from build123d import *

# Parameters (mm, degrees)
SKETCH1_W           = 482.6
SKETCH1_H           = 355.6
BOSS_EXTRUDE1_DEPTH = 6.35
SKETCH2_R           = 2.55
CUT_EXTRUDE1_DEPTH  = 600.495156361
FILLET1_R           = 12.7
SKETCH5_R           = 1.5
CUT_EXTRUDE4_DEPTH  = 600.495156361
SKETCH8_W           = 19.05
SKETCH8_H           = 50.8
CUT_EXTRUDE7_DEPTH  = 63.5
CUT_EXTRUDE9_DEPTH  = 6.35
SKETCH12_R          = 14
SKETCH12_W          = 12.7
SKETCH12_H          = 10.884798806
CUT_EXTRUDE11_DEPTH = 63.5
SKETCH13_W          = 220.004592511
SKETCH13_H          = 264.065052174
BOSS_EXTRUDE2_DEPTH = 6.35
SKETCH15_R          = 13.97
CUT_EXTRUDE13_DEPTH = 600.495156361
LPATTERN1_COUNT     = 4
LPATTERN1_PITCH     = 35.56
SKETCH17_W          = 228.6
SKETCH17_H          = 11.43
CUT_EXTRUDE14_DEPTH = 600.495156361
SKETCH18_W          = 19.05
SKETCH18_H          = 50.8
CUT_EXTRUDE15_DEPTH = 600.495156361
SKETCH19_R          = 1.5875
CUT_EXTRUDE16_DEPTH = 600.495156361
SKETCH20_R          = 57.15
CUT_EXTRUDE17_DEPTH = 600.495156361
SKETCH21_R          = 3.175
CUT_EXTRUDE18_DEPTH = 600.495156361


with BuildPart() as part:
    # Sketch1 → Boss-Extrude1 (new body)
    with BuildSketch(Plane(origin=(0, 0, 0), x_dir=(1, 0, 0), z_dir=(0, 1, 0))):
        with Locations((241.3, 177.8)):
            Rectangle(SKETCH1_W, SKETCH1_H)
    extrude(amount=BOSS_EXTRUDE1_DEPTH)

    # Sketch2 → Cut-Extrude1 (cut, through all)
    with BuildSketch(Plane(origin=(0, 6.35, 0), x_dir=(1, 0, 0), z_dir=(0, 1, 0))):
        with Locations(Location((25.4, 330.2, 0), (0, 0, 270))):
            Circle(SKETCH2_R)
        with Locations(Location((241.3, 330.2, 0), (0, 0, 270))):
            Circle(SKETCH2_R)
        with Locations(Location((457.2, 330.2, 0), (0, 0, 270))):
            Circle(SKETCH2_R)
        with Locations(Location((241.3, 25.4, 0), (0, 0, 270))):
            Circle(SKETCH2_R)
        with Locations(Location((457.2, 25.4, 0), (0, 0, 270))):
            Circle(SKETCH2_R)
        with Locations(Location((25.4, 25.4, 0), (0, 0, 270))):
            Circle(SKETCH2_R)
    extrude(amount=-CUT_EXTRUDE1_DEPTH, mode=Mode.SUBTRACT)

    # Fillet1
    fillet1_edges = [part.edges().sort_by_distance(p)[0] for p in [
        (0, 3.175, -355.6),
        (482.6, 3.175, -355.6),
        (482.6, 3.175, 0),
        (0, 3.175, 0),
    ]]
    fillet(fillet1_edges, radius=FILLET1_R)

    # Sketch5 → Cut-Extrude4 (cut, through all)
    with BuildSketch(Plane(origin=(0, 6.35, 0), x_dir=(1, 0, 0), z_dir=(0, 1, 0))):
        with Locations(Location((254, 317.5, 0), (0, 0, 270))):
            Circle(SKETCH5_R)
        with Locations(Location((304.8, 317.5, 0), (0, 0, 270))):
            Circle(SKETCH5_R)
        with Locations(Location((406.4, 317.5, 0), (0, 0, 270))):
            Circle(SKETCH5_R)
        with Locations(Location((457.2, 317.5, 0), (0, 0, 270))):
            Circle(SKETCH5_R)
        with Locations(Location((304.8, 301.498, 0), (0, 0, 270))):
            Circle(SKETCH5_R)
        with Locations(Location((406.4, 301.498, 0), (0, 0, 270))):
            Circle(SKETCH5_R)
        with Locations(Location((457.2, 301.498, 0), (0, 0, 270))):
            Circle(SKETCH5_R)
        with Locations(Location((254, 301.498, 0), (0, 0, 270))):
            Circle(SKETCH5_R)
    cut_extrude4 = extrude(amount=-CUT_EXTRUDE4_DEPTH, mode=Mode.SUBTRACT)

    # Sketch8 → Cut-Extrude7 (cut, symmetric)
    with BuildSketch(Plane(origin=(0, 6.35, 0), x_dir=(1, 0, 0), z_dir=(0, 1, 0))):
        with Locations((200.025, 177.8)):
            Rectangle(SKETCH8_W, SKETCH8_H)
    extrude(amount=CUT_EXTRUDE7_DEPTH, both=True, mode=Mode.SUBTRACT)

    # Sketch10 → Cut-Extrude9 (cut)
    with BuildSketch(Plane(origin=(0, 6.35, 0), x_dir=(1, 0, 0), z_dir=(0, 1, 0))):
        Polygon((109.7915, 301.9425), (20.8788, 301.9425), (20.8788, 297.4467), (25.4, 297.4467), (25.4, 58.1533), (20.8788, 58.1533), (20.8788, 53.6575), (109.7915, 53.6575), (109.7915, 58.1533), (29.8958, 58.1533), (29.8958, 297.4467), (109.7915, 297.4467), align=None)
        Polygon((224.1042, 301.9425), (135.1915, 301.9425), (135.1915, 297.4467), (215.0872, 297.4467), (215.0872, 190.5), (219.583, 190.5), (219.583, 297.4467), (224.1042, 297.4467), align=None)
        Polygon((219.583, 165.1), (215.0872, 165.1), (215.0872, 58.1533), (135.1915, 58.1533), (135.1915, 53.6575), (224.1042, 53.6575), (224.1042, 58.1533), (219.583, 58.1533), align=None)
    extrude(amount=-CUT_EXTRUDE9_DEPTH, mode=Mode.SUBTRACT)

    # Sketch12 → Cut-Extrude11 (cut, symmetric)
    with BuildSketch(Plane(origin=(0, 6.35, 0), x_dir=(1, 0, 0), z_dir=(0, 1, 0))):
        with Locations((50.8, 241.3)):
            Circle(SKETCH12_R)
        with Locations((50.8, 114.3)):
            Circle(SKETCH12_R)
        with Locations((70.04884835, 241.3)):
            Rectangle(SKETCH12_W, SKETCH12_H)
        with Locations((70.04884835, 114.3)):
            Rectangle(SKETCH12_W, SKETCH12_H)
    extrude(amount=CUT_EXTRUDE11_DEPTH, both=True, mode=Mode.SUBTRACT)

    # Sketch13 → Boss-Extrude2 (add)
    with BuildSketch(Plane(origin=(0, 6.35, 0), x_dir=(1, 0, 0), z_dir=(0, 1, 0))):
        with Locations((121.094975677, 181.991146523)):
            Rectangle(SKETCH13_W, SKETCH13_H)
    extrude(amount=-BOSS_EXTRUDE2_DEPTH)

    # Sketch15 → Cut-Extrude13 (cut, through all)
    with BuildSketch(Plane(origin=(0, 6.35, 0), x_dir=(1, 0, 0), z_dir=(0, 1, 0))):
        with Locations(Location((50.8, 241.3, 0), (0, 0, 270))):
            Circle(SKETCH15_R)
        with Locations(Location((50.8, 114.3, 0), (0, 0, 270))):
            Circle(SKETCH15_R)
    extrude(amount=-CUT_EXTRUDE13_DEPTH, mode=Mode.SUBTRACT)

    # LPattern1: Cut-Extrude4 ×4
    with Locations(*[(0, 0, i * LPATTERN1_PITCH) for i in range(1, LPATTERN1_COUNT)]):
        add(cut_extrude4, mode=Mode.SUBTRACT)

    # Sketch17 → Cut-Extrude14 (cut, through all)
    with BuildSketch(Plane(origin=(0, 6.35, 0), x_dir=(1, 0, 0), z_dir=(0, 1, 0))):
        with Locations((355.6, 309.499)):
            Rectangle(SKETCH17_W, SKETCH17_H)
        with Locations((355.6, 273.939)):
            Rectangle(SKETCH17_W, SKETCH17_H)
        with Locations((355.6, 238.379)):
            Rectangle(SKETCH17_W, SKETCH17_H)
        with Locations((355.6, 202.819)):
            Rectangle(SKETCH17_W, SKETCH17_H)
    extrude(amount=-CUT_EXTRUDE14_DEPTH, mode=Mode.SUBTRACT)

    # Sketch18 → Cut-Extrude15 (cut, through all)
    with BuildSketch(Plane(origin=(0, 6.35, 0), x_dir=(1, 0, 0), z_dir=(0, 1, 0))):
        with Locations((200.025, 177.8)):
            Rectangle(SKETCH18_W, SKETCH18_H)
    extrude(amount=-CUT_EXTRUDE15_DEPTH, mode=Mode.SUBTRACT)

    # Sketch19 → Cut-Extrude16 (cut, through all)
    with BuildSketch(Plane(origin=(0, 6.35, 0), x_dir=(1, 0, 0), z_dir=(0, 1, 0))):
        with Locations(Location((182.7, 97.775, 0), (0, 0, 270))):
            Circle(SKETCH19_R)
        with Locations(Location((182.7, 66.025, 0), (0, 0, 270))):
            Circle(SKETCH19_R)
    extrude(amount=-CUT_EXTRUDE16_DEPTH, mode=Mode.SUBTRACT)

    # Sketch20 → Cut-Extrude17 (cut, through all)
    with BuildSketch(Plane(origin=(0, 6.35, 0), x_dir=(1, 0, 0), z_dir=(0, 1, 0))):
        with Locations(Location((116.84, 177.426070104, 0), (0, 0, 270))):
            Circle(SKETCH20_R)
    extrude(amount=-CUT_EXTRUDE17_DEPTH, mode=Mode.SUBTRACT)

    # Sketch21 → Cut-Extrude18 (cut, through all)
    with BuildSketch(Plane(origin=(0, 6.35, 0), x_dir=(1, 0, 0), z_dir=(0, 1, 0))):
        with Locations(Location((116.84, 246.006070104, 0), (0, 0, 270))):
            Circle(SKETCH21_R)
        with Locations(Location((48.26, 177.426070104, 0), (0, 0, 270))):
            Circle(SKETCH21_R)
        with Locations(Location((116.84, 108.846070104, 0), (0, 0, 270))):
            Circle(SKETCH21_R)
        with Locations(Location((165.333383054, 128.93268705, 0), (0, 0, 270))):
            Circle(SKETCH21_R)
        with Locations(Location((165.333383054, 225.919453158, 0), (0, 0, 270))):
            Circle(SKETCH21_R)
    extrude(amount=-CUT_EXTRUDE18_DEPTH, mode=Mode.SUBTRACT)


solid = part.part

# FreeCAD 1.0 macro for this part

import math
import FreeCAD as App
import Part
import Sketcher
Q = App.Units.Quantity


def edges_at(feature, points):
    """Names of the edges that pass closest to the given points."""
    edges = feature.Shape.Edges
    near = lambda p: min(range(len(edges)), key=lambda i: edges[i].distToShape(Part.Vertex(*p))[0])
    return sorted({f"Edge{near(p) + 1}" for p in points})

doc = App.newDocument("Part")
params = doc.addObject("Spreadsheet::Sheet", "Params")
for row, (alias, value) in enumerate([
    ("sketch1_width", "19 in"),
    ("sketch1_height", "14 in"),
    ("pad1_length", "0.25 in"),
    ("fillet_radius", "0.5 in"),
    ("sketch4_height", "2 in"),
    ("sketch4_width", "0.75 in"),
    ("pocket3_length", "5 in"),
    ("sketch5_width", "0.178 in"),
    ("sketch5_width2", "0.177 in"),
    ("sketch5_height", "9.421 in"),
    ("pocket4_length", "0.25 in"),
    ("sketch6_width", "0.5 in"),
    ("pocket5_length", "5 in"),
    ("pad2_length", "0.25 in"),
    ("sketch8_diameter", "1.1 in"),
    ("linearpattern_pitch", "1.4 in"),
    ("sketch9_width", "9 in"),
    ("sketch9_height", "0.45 in"),
    ("sketch10_height", "2 in"),
    ("sketch10_width", "0.75 in"),
    ("sketch11_diameter", "0.125 in"),
    ("sketch12_diameter", "4.5 in"),
    ("sketch13_diameter", "0.25 in"),
], start=1):
    params.set(f"A{row}", alias)
    params.set(f"B{row}", "=" + value)
    params.setAlias(f"B{row}", alias)

body = doc.addObject("PartDesign::Body", "Body")

sketch1 = body.newObject("Sketcher::SketchObject", "Sketch")
sketch1.AttachmentSupport = (doc.getObject("XZ_Plane"), [""])
sketch1.MapMode = "FlatFace"
sketch1.addGeometry(Part.LineSegment(App.Vector(0, -356, 0), App.Vector(0, 0, 0)), False)
sketch1.addGeometry(Part.LineSegment(App.Vector(0, 0, 0), App.Vector(483, 0, 0)), False)
sketch1.addGeometry(Part.LineSegment(App.Vector(483, 0, 0), App.Vector(483, -356, 0)), False)
sketch1.addGeometry(Part.LineSegment(App.Vector(483, -356, 0), App.Vector(0, -356, 0)), False)
sketch1.addConstraint(Sketcher.Constraint("Coincident", 0, 2, 1, 1))
sketch1.addConstraint(Sketcher.Constraint("Coincident", 1, 2, 2, 1))
sketch1.addConstraint(Sketcher.Constraint("Coincident", 2, 2, 3, 1))
sketch1.addConstraint(Sketcher.Constraint("Coincident", 3, 2, 0, 1))
sketch1.addConstraint(Sketcher.Constraint("Vertical", 0))
sketch1.addConstraint(Sketcher.Constraint("Horizontal", 1))
sketch1.addConstraint(Sketcher.Constraint("Vertical", 2))
sketch1.addConstraint(Sketcher.Constraint("Horizontal", 3))
sketch1.addConstraint(Sketcher.Constraint("Coincident", 0, 2, -1, 1))
sketch1.addConstraint(Sketcher.Constraint("DistanceX", 1, 1, 1, 2, Q("19 in")))
sketch1.addConstraint(Sketcher.Constraint("DistanceY", 0, 1, 0, 2, Q("14 in")))
sketch1.setExpression("Constraints[9]", "Params.sketch1_width")
sketch1.setExpression("Constraints[10]", "Params.sketch1_height")
pad1 = body.newObject("PartDesign::Pad", "Pad")
pad1.Profile = sketch1
pad1.setExpression("Length", "Params.pad1_length")
pad1.Reversed = True

sketch2 = body.newObject("Sketcher::SketchObject", "Sketch001")
sketch2.AttachmentSupport = (doc.getObject("XZ_Plane"), [""])
sketch2.MapMode = "FlatFace"
sketch2.AttachmentOffset = App.Placement(App.Vector(0, 0, -0.25 * 25.4), App.Rotation())
sketch2.addGeometry(Part.Circle(App.Vector(25.4, -330.2, 0), App.Vector(0, 0, 1), 2.5), False)
sketch2.addGeometry(Part.Circle(App.Vector(241.3, -330.2, 0), App.Vector(0, 0, 1), 2.5), False)
sketch2.addGeometry(Part.Circle(App.Vector(457.2, -330.2, 0), App.Vector(0, 0, 1), 2.5), False)
sketch2.addGeometry(Part.Circle(App.Vector(241.3, -25.4, 0), App.Vector(0, 0, 1), 2.5), False)
sketch2.addGeometry(Part.Circle(App.Vector(457.2, -25.4, 0), App.Vector(0, 0, 1), 2.5), False)
sketch2.addGeometry(Part.Circle(App.Vector(25.4, -25.4, 0), App.Vector(0, 0, 1), 2.5), False)
sketch2.addConstraint(Sketcher.Constraint("Equal", 0, 1))
sketch2.addConstraint(Sketcher.Constraint("Equal", 1, 2))
sketch2.addConstraint(Sketcher.Constraint("Equal", 2, 3))
sketch2.addConstraint(Sketcher.Constraint("Equal", 3, 4))
sketch2.addConstraint(Sketcher.Constraint("Equal", 4, 5))
sketch2.addConstraint(Sketcher.Constraint("Horizontal", 0, 3, 1, 3))
sketch2.addConstraint(Sketcher.Constraint("Horizontal", 1, 3, 2, 3))
sketch2.addConstraint(Sketcher.Constraint("Horizontal", 3, 3, 4, 3))
sketch2.addConstraint(Sketcher.Constraint("Horizontal", 4, 3, 5, 3))
sketch2.addConstraint(Sketcher.Constraint("Vertical", 1, 3, 3, 3))
sketch2.addConstraint(Sketcher.Constraint("Vertical", 2, 3, 4, 3))
sketch2.addConstraint(Sketcher.Constraint("Vertical", 0, 3, 5, 3))
sketch2.addConstraint(Sketcher.Constraint("DistanceX", -1, 1, 0, 3, Q("1 in")))
sketch2.addConstraint(Sketcher.Constraint("DistanceY", 0, 3, -1, 1, Q("13 in")))
sketch2.addConstraint(Sketcher.Constraint("DistanceX", -1, 1, 2, 3, Q("18 in")))
sketch2.addConstraint(Sketcher.Constraint("DistanceY", 3, 3, -1, 1, Q("1 in")))
sketch2.addConstraint(Sketcher.Constraint("DistanceX", -1, 1, 1, 3, Q("9.5 in")))
sketch2.addConstraint(Sketcher.Constraint("Diameter", 0, Q("5.1 mm")))
pocket1 = body.newObject("PartDesign::Pocket", "Pocket")
pocket1.Profile = sketch2
pocket1.Type = "ThroughAll"
pocket1.Reversed = True
doc.recompute()

fillet = body.newObject("PartDesign::Fillet", "Fillet")
fillet.Base = (pocket1, edges_at(pocket1, [
    (0, 3.175, -355.6),
    (482.6, 3.175, -355.6),
    (482.6, 3.175, 0),
    (0, 3.175, 0),
]))
fillet.setExpression("Radius", "Params.fillet_radius")

sketch3 = body.newObject("Sketcher::SketchObject", "Sketch002")
sketch3.AttachmentSupport = (doc.getObject("XZ_Plane"), [""])
sketch3.MapMode = "FlatFace"
sketch3.AttachmentOffset = App.Placement(App.Vector(0, 0, -0.25 * 25.4), App.Rotation())
sketch3.addGeometry(Part.Circle(App.Vector(254, -317.5, 0), App.Vector(0, 0, 1), 1.5), False)
sketch3.addGeometry(Part.Circle(App.Vector(304.8, -317.5, 0), App.Vector(0, 0, 1), 1.5), False)
sketch3.addGeometry(Part.Circle(App.Vector(406.4, -317.5, 0), App.Vector(0, 0, 1), 1.5), False)
sketch3.addGeometry(Part.Circle(App.Vector(457.2, -317.5, 0), App.Vector(0, 0, 1), 1.5), False)
sketch3.addGeometry(Part.Circle(App.Vector(304.8, -301.5, 0), App.Vector(0, 0, 1), 1.5), False)
sketch3.addGeometry(Part.Circle(App.Vector(406.4, -301.5, 0), App.Vector(0, 0, 1), 1.5), False)
sketch3.addGeometry(Part.Circle(App.Vector(457.2, -301.5, 0), App.Vector(0, 0, 1), 1.5), False)
sketch3.addGeometry(Part.Circle(App.Vector(254, -301.5, 0), App.Vector(0, 0, 1), 1.5), False)
sketch3.addConstraint(Sketcher.Constraint("Equal", 0, 1))
sketch3.addConstraint(Sketcher.Constraint("Equal", 1, 2))
sketch3.addConstraint(Sketcher.Constraint("Equal", 2, 3))
sketch3.addConstraint(Sketcher.Constraint("Equal", 3, 4))
sketch3.addConstraint(Sketcher.Constraint("Equal", 4, 5))
sketch3.addConstraint(Sketcher.Constraint("Equal", 5, 6))
sketch3.addConstraint(Sketcher.Constraint("Equal", 6, 7))
sketch3.addConstraint(Sketcher.Constraint("Horizontal", 0, 3, 1, 3))
sketch3.addConstraint(Sketcher.Constraint("Horizontal", 1, 3, 2, 3))
sketch3.addConstraint(Sketcher.Constraint("Horizontal", 2, 3, 3, 3))
sketch3.addConstraint(Sketcher.Constraint("Horizontal", 4, 3, 5, 3))
sketch3.addConstraint(Sketcher.Constraint("Horizontal", 5, 3, 6, 3))
sketch3.addConstraint(Sketcher.Constraint("Horizontal", 6, 3, 7, 3))
sketch3.addConstraint(Sketcher.Constraint("Vertical", 1, 3, 4, 3))
sketch3.addConstraint(Sketcher.Constraint("Vertical", 2, 3, 5, 3))
sketch3.addConstraint(Sketcher.Constraint("Vertical", 3, 3, 6, 3))
sketch3.addConstraint(Sketcher.Constraint("Vertical", 0, 3, 7, 3))
sketch3.addConstraint(Sketcher.Constraint("DistanceX", -1, 1, 0, 3, Q("10 in")))
sketch3.addConstraint(Sketcher.Constraint("DistanceX", -1, 1, 1, 3, Q("12 in")))
sketch3.addConstraint(Sketcher.Constraint("DistanceX", -1, 1, 2, 3, Q("16 in")))
sketch3.addConstraint(Sketcher.Constraint("DistanceX", -1, 1, 3, 3, Q("18 in")))
sketch3.addConstraint(Sketcher.Constraint("DistanceY", 0, 3, -1, 1, Q("12.5 in")))
sketch3.addConstraint(Sketcher.Constraint("Diameter", 0, Q("3 mm")))
sketch3.addConstraint(Sketcher.Constraint("DistanceY", 4, 3, -1, 1, Q("11.87 in")))
pocket2 = body.newObject("PartDesign::Pocket", "Pocket001")
pocket2.Profile = sketch3
pocket2.Type = "ThroughAll"
pocket2.Reversed = True

sketch4 = body.newObject("Sketcher::SketchObject", "Sketch003")
sketch4.AttachmentSupport = (doc.getObject("XZ_Plane"), [""])
sketch4.MapMode = "FlatFace"
sketch4.AttachmentOffset = App.Placement(App.Vector(0, 0, -0.25 * 25.4), App.Rotation())
sketch4.addGeometry(Part.LineSegment(App.Vector(190, -203, 0), App.Vector(190, -152, 0)), False)
sketch4.addGeometry(Part.LineSegment(App.Vector(190, -152, 0), App.Vector(210, -152, 0)), False)
sketch4.addGeometry(Part.LineSegment(App.Vector(210, -152, 0), App.Vector(210, -203, 0)), False)
sketch4.addGeometry(Part.LineSegment(App.Vector(210, -203, 0), App.Vector(190, -203, 0)), False)
sketch4.addConstraint(Sketcher.Constraint("Coincident", 0, 2, 1, 1))
sketch4.addConstraint(Sketcher.Constraint("Coincident", 1, 2, 2, 1))
sketch4.addConstraint(Sketcher.Constraint("Coincident", 2, 2, 3, 1))
sketch4.addConstraint(Sketcher.Constraint("Coincident", 3, 2, 0, 1))
sketch4.addConstraint(Sketcher.Constraint("Vertical", 0))
sketch4.addConstraint(Sketcher.Constraint("Horizontal", 1))
sketch4.addConstraint(Sketcher.Constraint("Vertical", 2))
sketch4.addConstraint(Sketcher.Constraint("Horizontal", 3))
sketch4.addConstraint(Sketcher.Constraint("DistanceY", 0, 1, 0, 2, Q("2 in")))
sketch4.addConstraint(Sketcher.Constraint("DistanceY", 0, 2, -1, 1, Q("6 in")))
sketch4.addConstraint(Sketcher.Constraint("DistanceX", 1, 1, 1, 2, Q("0.75 in")))
sketch4.addConstraint(Sketcher.Constraint("DistanceX", -1, 1, 0, 2, Q("7.5 in")))
sketch4.setExpression("Constraints[8]", "Params.sketch4_height")
sketch4.setExpression("Constraints[10]", "Params.sketch4_width")
pocket3 = body.newObject("PartDesign::Pocket", "Pocket002")
pocket3.Profile = sketch4
pocket3.setExpression("Length", "Params.pocket3_length")
pocket3.Midplane = True

sketch5 = body.newObject("Sketcher::SketchObject", "Sketch004")
sketch5.AttachmentSupport = (doc.getObject("XZ_Plane"), [""])
sketch5.MapMode = "FlatFace"
sketch5.AttachmentOffset = App.Placement(App.Vector(0, 0, -0.25 * 25.4), App.Rotation())
sketch5.addGeometry(Part.LineSegment(App.Vector(109.8, -301.9, 0), App.Vector(20.9, -301.9, 0)), False)
sketch5.addGeometry(Part.LineSegment(App.Vector(20.9, -301.9, 0), App.Vector(20.9, -297.4, 0)), False)
sketch5.addGeometry(Part.LineSegment(App.Vector(20.9, -297.4, 0), App.Vector(25.4, -297.4, 0)), False)
sketch5.addGeometry(Part.LineSegment(App.Vector(25.4, -297.4, 0), App.Vector(25.4, -58.2, 0)), False)
sketch5.addGeometry(Part.LineSegment(App.Vector(25.4, -58.2, 0), App.Vector(20.9, -58.2, 0)), False)
sketch5.addGeometry(Part.LineSegment(App.Vector(20.9, -58.2, 0), App.Vector(20.9, -53.7, 0)), False)
sketch5.addGeometry(Part.LineSegment(App.Vector(20.9, -53.7, 0), App.Vector(109.8, -53.7, 0)), False)
sketch5.addGeometry(Part.LineSegment(App.Vector(109.8, -53.7, 0), App.Vector(109.8, -58.2, 0)), False)
sketch5.addGeometry(Part.LineSegment(App.Vector(109.8, -58.2, 0), App.Vector(29.9, -58.2, 0)), False)
sketch5.addGeometry(Part.LineSegment(App.Vector(29.9, -58.2, 0), App.Vector(29.9, -297.4, 0)), False)
sketch5.addGeometry(Part.LineSegment(App.Vector(29.9, -297.4, 0), App.Vector(109.8, -297.4, 0)), False)
sketch5.addGeometry(Part.LineSegment(App.Vector(109.8, -297.4, 0), App.Vector(109.8, -301.9, 0)), False)
sketch5.addGeometry(Part.LineSegment(App.Vector(224.1, -301.9, 0), App.Vector(135.2, -301.9, 0)), False)
sketch5.addGeometry(Part.LineSegment(App.Vector(135.2, -301.9, 0), App.Vector(135.2, -297.4, 0)), False)
sketch5.addGeometry(Part.LineSegment(App.Vector(135.2, -297.4, 0), App.Vector(215.1, -297.4, 0)), False)
sketch5.addGeometry(Part.LineSegment(App.Vector(215.1, -297.4, 0), App.Vector(215.1, -190.5, 0)), False)
sketch5.addGeometry(Part.LineSegment(App.Vector(215.1, -190.5, 0), App.Vector(219.6, -190.5, 0)), False)
sketch5.addGeometry(Part.LineSegment(App.Vector(219.6, -190.5, 0), App.Vector(219.6, -297.4, 0)), False)
sketch5.addGeometry(Part.LineSegment(App.Vector(219.6, -297.4, 0), App.Vector(224.1, -297.4, 0)), False)
sketch5.addGeometry(Part.LineSegment(App.Vector(224.1, -297.4, 0), App.Vector(224.1, -301.9, 0)), False)
sketch5.addGeometry(Part.LineSegment(App.Vector(219.6, -165.1, 0), App.Vector(215.1, -165.1, 0)), False)
sketch5.addGeometry(Part.LineSegment(App.Vector(215.1, -165.1, 0), App.Vector(215.1, -58.2, 0)), False)
sketch5.addGeometry(Part.LineSegment(App.Vector(215.1, -58.2, 0), App.Vector(135.2, -58.2, 0)), False)
sketch5.addGeometry(Part.LineSegment(App.Vector(135.2, -58.2, 0), App.Vector(135.2, -53.7, 0)), False)
sketch5.addGeometry(Part.LineSegment(App.Vector(135.2, -53.7, 0), App.Vector(224.1, -53.7, 0)), False)
sketch5.addGeometry(Part.LineSegment(App.Vector(224.1, -53.7, 0), App.Vector(224.1, -58.2, 0)), False)
sketch5.addGeometry(Part.LineSegment(App.Vector(224.1, -58.2, 0), App.Vector(219.6, -58.2, 0)), False)
sketch5.addGeometry(Part.LineSegment(App.Vector(219.6, -58.2, 0), App.Vector(219.6, -165.1, 0)), False)
sketch5.addConstraint(Sketcher.Constraint("Coincident", 0, 2, 1, 1))
sketch5.addConstraint(Sketcher.Constraint("Coincident", 1, 2, 2, 1))
sketch5.addConstraint(Sketcher.Constraint("Coincident", 2, 2, 3, 1))
sketch5.addConstraint(Sketcher.Constraint("Coincident", 3, 2, 4, 1))
sketch5.addConstraint(Sketcher.Constraint("Coincident", 4, 2, 5, 1))
sketch5.addConstraint(Sketcher.Constraint("Coincident", 5, 2, 6, 1))
sketch5.addConstraint(Sketcher.Constraint("Coincident", 6, 2, 7, 1))
sketch5.addConstraint(Sketcher.Constraint("Coincident", 7, 2, 8, 1))
sketch5.addConstraint(Sketcher.Constraint("Coincident", 8, 2, 9, 1))
sketch5.addConstraint(Sketcher.Constraint("Coincident", 9, 2, 10, 1))
sketch5.addConstraint(Sketcher.Constraint("Coincident", 10, 2, 11, 1))
sketch5.addConstraint(Sketcher.Constraint("Coincident", 11, 2, 0, 1))
sketch5.addConstraint(Sketcher.Constraint("Coincident", 12, 2, 13, 1))
sketch5.addConstraint(Sketcher.Constraint("Coincident", 13, 2, 14, 1))
sketch5.addConstraint(Sketcher.Constraint("Coincident", 14, 2, 15, 1))
sketch5.addConstraint(Sketcher.Constraint("Coincident", 15, 2, 16, 1))
sketch5.addConstraint(Sketcher.Constraint("Coincident", 16, 2, 17, 1))
sketch5.addConstraint(Sketcher.Constraint("Coincident", 17, 2, 18, 1))
sketch5.addConstraint(Sketcher.Constraint("Coincident", 18, 2, 19, 1))
sketch5.addConstraint(Sketcher.Constraint("Coincident", 19, 2, 12, 1))
sketch5.addConstraint(Sketcher.Constraint("Coincident", 20, 2, 21, 1))
sketch5.addConstraint(Sketcher.Constraint("Coincident", 21, 2, 22, 1))
sketch5.addConstraint(Sketcher.Constraint("Coincident", 22, 2, 23, 1))
sketch5.addConstraint(Sketcher.Constraint("Coincident", 23, 2, 24, 1))
sketch5.addConstraint(Sketcher.Constraint("Coincident", 24, 2, 25, 1))
sketch5.addConstraint(Sketcher.Constraint("Coincident", 25, 2, 26, 1))
sketch5.addConstraint(Sketcher.Constraint("Coincident", 26, 2, 27, 1))
sketch5.addConstraint(Sketcher.Constraint("Coincident", 27, 2, 20, 1))
sketch5.addConstraint(Sketcher.Constraint("Horizontal", 0))
sketch5.addConstraint(Sketcher.Constraint("Vertical", 1))
sketch5.addConstraint(Sketcher.Constraint("Horizontal", 2))
sketch5.addConstraint(Sketcher.Constraint("Vertical", 3))
sketch5.addConstraint(Sketcher.Constraint("Horizontal", 4))
sketch5.addConstraint(Sketcher.Constraint("Vertical", 5))
sketch5.addConstraint(Sketcher.Constraint("Horizontal", 6))
sketch5.addConstraint(Sketcher.Constraint("Vertical", 7))
sketch5.addConstraint(Sketcher.Constraint("Horizontal", 8))
sketch5.addConstraint(Sketcher.Constraint("Vertical", 9))
sketch5.addConstraint(Sketcher.Constraint("Horizontal", 10))
sketch5.addConstraint(Sketcher.Constraint("Vertical", 11))
sketch5.addConstraint(Sketcher.Constraint("Horizontal", 12))
sketch5.addConstraint(Sketcher.Constraint("Vertical", 13))
sketch5.addConstraint(Sketcher.Constraint("Horizontal", 14))
sketch5.addConstraint(Sketcher.Constraint("Vertical", 15))
sketch5.addConstraint(Sketcher.Constraint("Horizontal", 16))
sketch5.addConstraint(Sketcher.Constraint("Vertical", 17))
sketch5.addConstraint(Sketcher.Constraint("Horizontal", 18))
sketch5.addConstraint(Sketcher.Constraint("Vertical", 19))
sketch5.addConstraint(Sketcher.Constraint("Horizontal", 20))
sketch5.addConstraint(Sketcher.Constraint("Vertical", 21))
sketch5.addConstraint(Sketcher.Constraint("Horizontal", 22))
sketch5.addConstraint(Sketcher.Constraint("Vertical", 23))
sketch5.addConstraint(Sketcher.Constraint("Horizontal", 24))
sketch5.addConstraint(Sketcher.Constraint("Vertical", 25))
sketch5.addConstraint(Sketcher.Constraint("Horizontal", 26))
sketch5.addConstraint(Sketcher.Constraint("Vertical", 27))
sketch5.addConstraint(Sketcher.Constraint("Horizontal", 4, 2, 7, 2))
sketch5.addConstraint(Sketcher.Constraint("Horizontal", 2, 2, 9, 2))
sketch5.addConstraint(Sketcher.Constraint("Horizontal", 11, 2, 12, 2))
sketch5.addConstraint(Sketcher.Constraint("Horizontal", 10, 2, 13, 2))
sketch5.addConstraint(Sketcher.Constraint("Horizontal", 14, 2, 17, 2))
sketch5.addConstraint(Sketcher.Constraint("Horizontal", 8, 2, 21, 2))
sketch5.addConstraint(Sketcher.Constraint("Horizontal", 6, 2, 23, 2))
sketch5.addConstraint(Sketcher.Constraint("Horizontal", 22, 2, 25, 2))
sketch5.addConstraint(Sketcher.Constraint("Vertical", 1, 2, 4, 2))
sketch5.addConstraint(Sketcher.Constraint("Vertical", 7, 2, 10, 2))
sketch5.addConstraint(Sketcher.Constraint("Vertical", 15, 2, 20, 2))
sketch5.addConstraint(Sketcher.Constraint("Vertical", 13, 2, 22, 2))
sketch5.addConstraint(Sketcher.Constraint("Vertical", 19, 2, 24, 2))
sketch5.addConstraint(Sketcher.Constraint("Vertical", 17, 2, 26, 2))
sketch5.addConstraint(Sketcher.Constraint("Equal", 6, 12))
sketch5.addConstraint(Sketcher.Constraint("Equal", 10, 14))
sketch5.addConstraint(Sketcher.Constraint("Equal", 4, 18))
sketch5.addConstraint(Sketcher.Constraint("Equal", 20, 1))
sketch5.addConstraint(Sketcher.Constraint("Equal", 1, 5))
sketch5.addConstraint(Sketcher.Constraint("Equal", 17, 21))
sketch5.addConstraint(Sketcher.Constraint("DistanceX", -1, 1, 2, 2, Q("1 in")))
sketch5.addConstraint(Sketcher.Constraint("DistanceX", 11, 2, 12, 2, Q("1 in")))
sketch5.addConstraint(Sketcher.Constraint("DistanceY", 15, 2, 20, 2, Q("1 in")))
sketch5.addConstraint(Sketcher.Constraint("DistanceY", 15, 2, -1, 1, Q("7.5 in")))
sketch5.addConstraint(Sketcher.Constraint("DistanceX", 2, 1, 2, 2, Q("0.178 in")))
sketch5.addConstraint(Sketcher.Constraint("DistanceX", 16, 1, 16, 2, Q("0.177 in")))
sketch5.addConstraint(Sketcher.Constraint("DistanceY", 3, 1, 3, 2, Q("9.421 in")))
sketch5.addConstraint(Sketcher.Constraint("DistanceX", 0, 2, 0, 1, Q("3.5005 in")))
sketch5.setExpression("Constraints[80]", "Params.sketch5_width")
sketch5.setExpression("Constraints[81]", "Params.sketch5_width2")
sketch5.setExpression("Constraints[82]", "Params.sketch5_height")
pocket4 = body.newObject("PartDesign::Pocket", "Pocket003")
pocket4.Profile = sketch5
pocket4.setExpression("Length", "Params.pocket4_length")
pocket4.Reversed = True

sketch6 = body.newObject("Sketcher::SketchObject", "Sketch005")
sketch6.AttachmentSupport = (doc.getObject("XZ_Plane"), [""])
sketch6.MapMode = "FlatFace"
sketch6.AttachmentOffset = App.Placement(App.Vector(0, 0, -0.25 * 25.4), App.Rotation())
sketch6.addGeometry(Part.LineSegment(App.Vector(64, -236, 0), App.Vector(76, -236, 0)), False)
sketch6.addGeometry(Part.LineSegment(App.Vector(76, -236, 0), App.Vector(76, -247, 0)), False)
sketch6.addGeometry(Part.LineSegment(App.Vector(76, -247, 0), App.Vector(64, -247, 0)), False)
sketch6.addGeometry(Part.ArcOfCircle(Part.Circle(App.Vector(51, -241, 0), App.Vector(0, 0, 1), 14), math.radians(23), math.radians(337)), False)
sketch6.addGeometry(Part.LineSegment(App.Vector(64, -109, 0), App.Vector(76, -109, 0)), False)
sketch6.addGeometry(Part.LineSegment(App.Vector(76, -109, 0), App.Vector(76, -120, 0)), False)
sketch6.addGeometry(Part.LineSegment(App.Vector(76, -120, 0), App.Vector(64, -120, 0)), False)
sketch6.addGeometry(Part.ArcOfCircle(Part.Circle(App.Vector(51, -114, 0), App.Vector(0, 0, 1), 14), math.radians(23), math.radians(337)), False)
sketch6.addConstraint(Sketcher.Constraint("Coincident", 0, 2, 1, 1))
sketch6.addConstraint(Sketcher.Constraint("Coincident", 1, 2, 2, 1))
sketch6.addConstraint(Sketcher.Constraint("Coincident", 2, 2, 3, 2))
sketch6.addConstraint(Sketcher.Constraint("Coincident", 3, 1, 0, 1))
sketch6.addConstraint(Sketcher.Constraint("Coincident", 4, 2, 5, 1))
sketch6.addConstraint(Sketcher.Constraint("Coincident", 5, 2, 6, 1))
sketch6.addConstraint(Sketcher.Constraint("Coincident", 6, 2, 7, 2))
sketch6.addConstraint(Sketcher.Constraint("Coincident", 7, 1, 4, 1))
sketch6.addConstraint(Sketcher.Constraint("Horizontal", 0))
sketch6.addConstraint(Sketcher.Constraint("Vertical", 1))
sketch6.addConstraint(Sketcher.Constraint("Horizontal", 2))
sketch6.addConstraint(Sketcher.Constraint("Horizontal", 4))
sketch6.addConstraint(Sketcher.Constraint("Vertical", 5))
sketch6.addConstraint(Sketcher.Constraint("Horizontal", 6))
sketch6.addConstraint(Sketcher.Constraint("Equal", 3, 7))
sketch6.addConstraint(Sketcher.Constraint("Vertical", 3, 3, 7, 3))
sketch6.addConstraint(Sketcher.Constraint("Vertical", 2, 2, 3, 1))
sketch6.addConstraint(Sketcher.Constraint("Vertical", 1, 2, 4, 2))
sketch6.addConstraint(Sketcher.Constraint("Vertical", 3, 1, 6, 2))
sketch6.addConstraint(Sketcher.Constraint("Vertical", 6, 2, 7, 1))
sketch6.addConstraint(Sketcher.Constraint("DistanceX", 0, 1, 0, 2, Q("0.5 in")))
sketch6.addConstraint(Sketcher.Constraint("DistanceX", -1, 1, 3, 3, Q("2 in")))
sketch6.addConstraint(Sketcher.Constraint("DistanceY", 3, 3, 7, 3, Q("5 in")))
sketch6.addConstraint(Sketcher.Constraint("DistanceY", 3, 3, -1, 1, Q("9.5 in")))
sketch6.addConstraint(Sketcher.Constraint("Radius", 3, Q("14 mm")))
sketch6.addConstraint(Sketcher.Constraint("DistanceY", 1, 2, 1, 1, Q("10.884799 mm")))
sketch6.setExpression("Constraints[20]", "Params.sketch6_width")
pocket5 = body.newObject("PartDesign::Pocket", "Pocket004")
pocket5.Profile = sketch6
pocket5.setExpression("Length", "Params.pocket5_length")
pocket5.Midplane = True

sketch7 = body.newObject("Sketcher::SketchObject", "Sketch006")
sketch7.AttachmentSupport = (doc.getObject("XZ_Plane"), [""])
sketch7.MapMode = "FlatFace"
sketch7.AttachmentOffset = App.Placement(App.Vector(0, 0, -0.25 * 25.4), App.Rotation())
sketch7.addGeometry(Part.LineSegment(App.Vector(11, -314, 0), App.Vector(11, -50, 0)), False)
sketch7.addGeometry(Part.LineSegment(App.Vector(11, -50, 0), App.Vector(231, -50, 0)), False)
sketch7.addGeometry(Part.LineSegment(App.Vector(231, -50, 0), App.Vector(231, -314, 0)), False)
sketch7.addGeometry(Part.LineSegment(App.Vector(231, -314, 0), App.Vector(11, -314, 0)), False)
sketch7.addConstraint(Sketcher.Constraint("Coincident", 0, 2, 1, 1))
sketch7.addConstraint(Sketcher.Constraint("Coincident", 1, 2, 2, 1))
sketch7.addConstraint(Sketcher.Constraint("Coincident", 2, 2, 3, 1))
sketch7.addConstraint(Sketcher.Constraint("Coincident", 3, 2, 0, 1))
sketch7.addConstraint(Sketcher.Constraint("Vertical", 0))
sketch7.addConstraint(Sketcher.Constraint("Horizontal", 1))
sketch7.addConstraint(Sketcher.Constraint("Vertical", 2))
sketch7.addConstraint(Sketcher.Constraint("Horizontal", 3))
sketch7.addConstraint(Sketcher.Constraint("DistanceX", 1, 1, 1, 2, Q("220.004593 mm")))
sketch7.addConstraint(Sketcher.Constraint("DistanceY", 0, 1, 0, 2, Q("264.065052 mm")))
sketch7.addConstraint(Sketcher.Constraint("DistanceX", -1, 1, 0, 2, Q("11.092679 mm")))
sketch7.addConstraint(Sketcher.Constraint("DistanceY", 0, 2, -1, 1, Q("49.95862 mm")))
pad2 = body.newObject("PartDesign::Pad", "Pad001")
pad2.Profile = sketch7
pad2.setExpression("Length", "Params.pad2_length")

sketch8 = body.newObject("Sketcher::SketchObject", "Sketch007")
sketch8.AttachmentSupport = (doc.getObject("XZ_Plane"), [""])
sketch8.MapMode = "FlatFace"
sketch8.AttachmentOffset = App.Placement(App.Vector(0, 0, -0.25 * 25.4), App.Rotation())
sketch8.addGeometry(Part.Circle(App.Vector(51, -241, 0), App.Vector(0, 0, 1), 14), False)
sketch8.addGeometry(Part.Circle(App.Vector(51, -114, 0), App.Vector(0, 0, 1), 14), False)
sketch8.addConstraint(Sketcher.Constraint("Equal", 0, 1))
sketch8.addConstraint(Sketcher.Constraint("Vertical", 0, 3, 1, 3))
sketch8.addConstraint(Sketcher.Constraint("Diameter", 0, Q("1.1 in")))
sketch8.addConstraint(Sketcher.Constraint("DistanceX", -1, 1, 0, 3, Q("2 in")))
sketch8.addConstraint(Sketcher.Constraint("DistanceY", 0, 3, 1, 3, Q("5 in")))
sketch8.addConstraint(Sketcher.Constraint("DistanceY", 0, 3, -1, 1, Q("9.5 in")))
sketch8.setExpression("Constraints[2]", "Params.sketch8_diameter")
pocket6 = body.newObject("PartDesign::Pocket", "Pocket005")
pocket6.Profile = sketch8
pocket6.Type = "ThroughAll"
pocket6.Reversed = True
doc.recompute()

linearpattern = body.newObject("PartDesign::LinearPattern", "LinearPattern")
linearpattern.Originals = [pocket2]
linearpattern.Direction = (doc.getObject("Z_Axis"), [""])
linearpattern.Mode = "offset"
linearpattern.setExpression("Offset", "Params.linearpattern_pitch")
linearpattern.Occurrences = 4
body.Tip = linearpattern

sketch9 = body.newObject("Sketcher::SketchObject", "Sketch008")
sketch9.AttachmentSupport = (doc.getObject("XZ_Plane"), [""])
sketch9.MapMode = "FlatFace"
sketch9.AttachmentOffset = App.Placement(App.Vector(0, 0, -0.25 * 25.4), App.Rotation())
sketch9.addGeometry(Part.LineSegment(App.Vector(241, -315, 0), App.Vector(241, -304, 0)), False)
sketch9.addGeometry(Part.LineSegment(App.Vector(241, -304, 0), App.Vector(470, -304, 0)), False)
sketch9.addGeometry(Part.LineSegment(App.Vector(470, -304, 0), App.Vector(470, -315, 0)), False)
sketch9.addGeometry(Part.LineSegment(App.Vector(470, -315, 0), App.Vector(241, -315, 0)), False)
sketch9.addGeometry(Part.LineSegment(App.Vector(241, -280, 0), App.Vector(241, -268, 0)), False)
sketch9.addGeometry(Part.LineSegment(App.Vector(241, -268, 0), App.Vector(470, -268, 0)), False)
sketch9.addGeometry(Part.LineSegment(App.Vector(470, -268, 0), App.Vector(470, -280, 0)), False)
sketch9.addGeometry(Part.LineSegment(App.Vector(470, -280, 0), App.Vector(241, -280, 0)), False)
sketch9.addGeometry(Part.LineSegment(App.Vector(241, -244, 0), App.Vector(241, -233, 0)), False)
sketch9.addGeometry(Part.LineSegment(App.Vector(241, -233, 0), App.Vector(470, -233, 0)), False)
sketch9.addGeometry(Part.LineSegment(App.Vector(470, -233, 0), App.Vector(470, -244, 0)), False)
sketch9.addGeometry(Part.LineSegment(App.Vector(470, -244, 0), App.Vector(241, -244, 0)), False)
sketch9.addGeometry(Part.LineSegment(App.Vector(241, -209, 0), App.Vector(241, -197, 0)), False)
sketch9.addGeometry(Part.LineSegment(App.Vector(241, -197, 0), App.Vector(470, -197, 0)), False)
sketch9.addGeometry(Part.LineSegment(App.Vector(470, -197, 0), App.Vector(470, -209, 0)), False)
sketch9.addGeometry(Part.LineSegment(App.Vector(470, -209, 0), App.Vector(241, -209, 0)), False)
sketch9.addConstraint(Sketcher.Constraint("Coincident", 0, 2, 1, 1))
sketch9.addConstraint(Sketcher.Constraint("Coincident", 1, 2, 2, 1))
sketch9.addConstraint(Sketcher.Constraint("Coincident", 2, 2, 3, 1))
sketch9.addConstraint(Sketcher.Constraint("Coincident", 3, 2, 0, 1))
sketch9.addConstraint(Sketcher.Constraint("Coincident", 4, 2, 5, 1))
sketch9.addConstraint(Sketcher.Constraint("Coincident", 5, 2, 6, 1))
sketch9.addConstraint(Sketcher.Constraint("Coincident", 6, 2, 7, 1))
sketch9.addConstraint(Sketcher.Constraint("Coincident", 7, 2, 4, 1))
sketch9.addConstraint(Sketcher.Constraint("Coincident", 8, 2, 9, 1))
sketch9.addConstraint(Sketcher.Constraint("Coincident", 9, 2, 10, 1))
sketch9.addConstraint(Sketcher.Constraint("Coincident", 10, 2, 11, 1))
sketch9.addConstraint(Sketcher.Constraint("Coincident", 11, 2, 8, 1))
sketch9.addConstraint(Sketcher.Constraint("Coincident", 12, 2, 13, 1))
sketch9.addConstraint(Sketcher.Constraint("Coincident", 13, 2, 14, 1))
sketch9.addConstraint(Sketcher.Constraint("Coincident", 14, 2, 15, 1))
sketch9.addConstraint(Sketcher.Constraint("Coincident", 15, 2, 12, 1))
sketch9.addConstraint(Sketcher.Constraint("Vertical", 0))
sketch9.addConstraint(Sketcher.Constraint("Horizontal", 1))
sketch9.addConstraint(Sketcher.Constraint("Vertical", 2))
sketch9.addConstraint(Sketcher.Constraint("Horizontal", 3))
sketch9.addConstraint(Sketcher.Constraint("Vertical", 4))
sketch9.addConstraint(Sketcher.Constraint("Horizontal", 5))
sketch9.addConstraint(Sketcher.Constraint("Vertical", 6))
sketch9.addConstraint(Sketcher.Constraint("Horizontal", 7))
sketch9.addConstraint(Sketcher.Constraint("Vertical", 8))
sketch9.addConstraint(Sketcher.Constraint("Horizontal", 9))
sketch9.addConstraint(Sketcher.Constraint("Vertical", 10))
sketch9.addConstraint(Sketcher.Constraint("Horizontal", 11))
sketch9.addConstraint(Sketcher.Constraint("Vertical", 12))
sketch9.addConstraint(Sketcher.Constraint("Horizontal", 13))
sketch9.addConstraint(Sketcher.Constraint("Vertical", 14))
sketch9.addConstraint(Sketcher.Constraint("Horizontal", 15))
sketch9.addConstraint(Sketcher.Constraint("Vertical", 3, 2, 4, 2))
sketch9.addConstraint(Sketcher.Constraint("Vertical", 2, 2, 5, 2))
sketch9.addConstraint(Sketcher.Constraint("Vertical", 7, 2, 8, 2))
sketch9.addConstraint(Sketcher.Constraint("Vertical", 6, 2, 9, 2))
sketch9.addConstraint(Sketcher.Constraint("Vertical", 11, 2, 12, 2))
sketch9.addConstraint(Sketcher.Constraint("Vertical", 10, 2, 13, 2))
sketch9.addConstraint(Sketcher.Constraint("Equal", 2, 4))
sketch9.addConstraint(Sketcher.Constraint("Equal", 6, 8))
sketch9.addConstraint(Sketcher.Constraint("Equal", 10, 12))
sketch9.addConstraint(Sketcher.Constraint("DistanceX", 1, 1, 1, 2, Q("9 in")))
sketch9.addConstraint(Sketcher.Constraint("DistanceY", 0, 1, 0, 2, Q("0.45 in")))
sketch9.addConstraint(Sketcher.Constraint("DistanceX", -1, 1, 0, 2, Q("9.5 in")))
sketch9.addConstraint(Sketcher.Constraint("DistanceY", 0, 2, 4, 2, Q("1.4 in")))
sketch9.addConstraint(Sketcher.Constraint("DistanceY", 4, 2, 8, 2, Q("1.4 in")))
sketch9.addConstraint(Sketcher.Constraint("DistanceY", 8, 2, 12, 2, Q("1.4 in")))
sketch9.addConstraint(Sketcher.Constraint("DistanceY", 0, 2, -1, 1, Q("11.96 in")))
sketch9.setExpression("Constraints[41]", "Params.sketch9_width")
sketch9.setExpression("Constraints[42]", "Params.sketch9_height")
pocket7 = body.newObject("PartDesign::Pocket", "Pocket006")
pocket7.Profile = sketch9
pocket7.Type = "ThroughAll"
pocket7.Reversed = True

sketch10 = body.newObject("Sketcher::SketchObject", "Sketch009")
sketch10.AttachmentSupport = (doc.getObject("XZ_Plane"), [""])
sketch10.MapMode = "FlatFace"
sketch10.AttachmentOffset = App.Placement(App.Vector(0, 0, -0.25 * 25.4), App.Rotation())
sketch10.addGeometry(Part.LineSegment(App.Vector(190, -203, 0), App.Vector(190, -152, 0)), False)
sketch10.addGeometry(Part.LineSegment(App.Vector(190, -152, 0), App.Vector(210, -152, 0)), False)
sketch10.addGeometry(Part.LineSegment(App.Vector(210, -152, 0), App.Vector(210, -203, 0)), False)
sketch10.addGeometry(Part.LineSegment(App.Vector(210, -203, 0), App.Vector(190, -203, 0)), False)
sketch10.addConstraint(Sketcher.Constraint("Coincident", 0, 2, 1, 1))
sketch10.addConstraint(Sketcher.Constraint("Coincident", 1, 2, 2, 1))
sketch10.addConstraint(Sketcher.Constraint("Coincident", 2, 2, 3, 1))
sketch10.addConstraint(Sketcher.Constraint("Coincident", 3, 2, 0, 1))
sketch10.addConstraint(Sketcher.Constraint("Vertical", 0))
sketch10.addConstraint(Sketcher.Constraint("Horizontal", 1))
sketch10.addConstraint(Sketcher.Constraint("Vertical", 2))
sketch10.addConstraint(Sketcher.Constraint("Horizontal", 3))
sketch10.addConstraint(Sketcher.Constraint("DistanceY", 0, 1, 0, 2, Q("2 in")))
sketch10.addConstraint(Sketcher.Constraint("DistanceY", 0, 2, -1, 1, Q("6 in")))
sketch10.addConstraint(Sketcher.Constraint("DistanceX", 1, 1, 1, 2, Q("0.75 in")))
sketch10.addConstraint(Sketcher.Constraint("DistanceX", -1, 1, 0, 2, Q("7.5 in")))
sketch10.setExpression("Constraints[8]", "Params.sketch10_height")
sketch10.setExpression("Constraints[10]", "Params.sketch10_width")
pocket8 = body.newObject("PartDesign::Pocket", "Pocket007")
pocket8.Profile = sketch10
pocket8.Type = "ThroughAll"
pocket8.Reversed = True

sketch11 = body.newObject("Sketcher::SketchObject", "Sketch010")
sketch11.AttachmentSupport = (doc.getObject("XZ_Plane"), [""])
sketch11.MapMode = "FlatFace"
sketch11.AttachmentOffset = App.Placement(App.Vector(0, 0, -0.25 * 25.4), App.Rotation())
sketch11.addGeometry(Part.Circle(App.Vector(182.7, -97.8, 0), App.Vector(0, 0, 1), 1.6), False)
sketch11.addGeometry(Part.Circle(App.Vector(182.7, -66, 0), App.Vector(0, 0, 1), 1.6), False)
sketch11.addConstraint(Sketcher.Constraint("Equal", 0, 1))
sketch11.addConstraint(Sketcher.Constraint("Vertical", 0, 3, 1, 3))
sketch11.addConstraint(Sketcher.Constraint("Diameter", 0, Q("0.125 in")))
sketch11.addConstraint(Sketcher.Constraint("DistanceY", 0, 3, 1, 3, Q("1.25 in")))
sketch11.addConstraint(Sketcher.Constraint("DistanceX", -1, 1, 0, 3, Q("182.7 mm")))
sketch11.addConstraint(Sketcher.Constraint("DistanceY", 0, 3, -1, 1, Q("97.775 mm")))
sketch11.setExpression("Constraints[2]", "Params.sketch11_diameter")
pocket9 = body.newObject("PartDesign::Pocket", "Pocket008")
pocket9.Profile = sketch11
pocket9.Type = "ThroughAll"
pocket9.Reversed = True

sketch12 = body.newObject("Sketcher::SketchObject", "Sketch011")
sketch12.AttachmentSupport = (doc.getObject("XZ_Plane"), [""])
sketch12.MapMode = "FlatFace"
sketch12.AttachmentOffset = App.Placement(App.Vector(0, 0, -0.25 * 25.4), App.Rotation())
sketch12.addGeometry(Part.Circle(App.Vector(117, -177, 0), App.Vector(0, 0, 1), 57), False)
sketch12.addConstraint(Sketcher.Constraint("Diameter", 0, Q("4.5 in")))
sketch12.addConstraint(Sketcher.Constraint("DistanceX", -1, 1, 0, 3, Q("4.6 in")))
sketch12.addConstraint(Sketcher.Constraint("DistanceY", 0, 3, -1, 1, Q("177.42607 mm")))
sketch12.setExpression("Constraints[0]", "Params.sketch12_diameter")
pocket10 = body.newObject("PartDesign::Pocket", "Pocket009")
pocket10.Profile = sketch12
pocket10.Type = "ThroughAll"
pocket10.Reversed = True

sketch13 = body.newObject("Sketcher::SketchObject", "Sketch012")
sketch13.AttachmentSupport = (doc.getObject("XZ_Plane"), [""])
sketch13.MapMode = "FlatFace"
sketch13.AttachmentOffset = App.Placement(App.Vector(0, 0, -0.25 * 25.4), App.Rotation())
sketch13.addGeometry(Part.Circle(App.Vector(116.8, -246, 0), App.Vector(0, 0, 1), 3.2), False)
sketch13.addGeometry(Part.Circle(App.Vector(48.3, -177.4, 0), App.Vector(0, 0, 1), 3.2), False)
sketch13.addGeometry(Part.Circle(App.Vector(116.8, -108.8, 0), App.Vector(0, 0, 1), 3.2), False)
sketch13.addGeometry(Part.Circle(App.Vector(165.3, -128.9, 0), App.Vector(0, 0, 1), 3.2), False)
sketch13.addGeometry(Part.Circle(App.Vector(165.3, -225.9, 0), App.Vector(0, 0, 1), 3.2), False)
sketch13.addConstraint(Sketcher.Constraint("Equal", 0, 1))
sketch13.addConstraint(Sketcher.Constraint("Equal", 1, 2))
sketch13.addConstraint(Sketcher.Constraint("Equal", 2, 3))
sketch13.addConstraint(Sketcher.Constraint("Equal", 3, 4))
sketch13.addConstraint(Sketcher.Constraint("Vertical", 0, 3, 2, 3))
sketch13.addConstraint(Sketcher.Constraint("Vertical", 3, 3, 4, 3))
sketch13.addConstraint(Sketcher.Constraint("Diameter", 0, Q("0.25 in")))
sketch13.addConstraint(Sketcher.Constraint("DistanceX", -1, 1, 0, 3, Q("4.6 in")))
sketch13.addConstraint(Sketcher.Constraint("DistanceX", -1, 1, 1, 3, Q("1.9 in")))
sketch13.addConstraint(Sketcher.Constraint("DistanceY", 0, 3, 1, 3, Q("2.7 in")))
sketch13.addConstraint(Sketcher.Constraint("DistanceY", 1, 3, 2, 3, Q("2.7 in")))
sketch13.addConstraint(Sketcher.Constraint("DistanceY", 0, 3, -1, 1, Q("246.00607 mm")))
sketch13.addConstraint(Sketcher.Constraint("DistanceX", -1, 1, 3, 3, Q("165.333383 mm")))
sketch13.addConstraint(Sketcher.Constraint("DistanceY", 3, 3, -1, 1, Q("128.932687 mm")))
sketch13.addConstraint(Sketcher.Constraint("DistanceY", 4, 3, -1, 1, Q("225.919453 mm")))
sketch13.setExpression("Constraints[6]", "Params.sketch13_diameter")
pocket11 = body.newObject("PartDesign::Pocket", "Pocket010")
pocket11.Profile = sketch13
pocket11.Type = "ThroughAll"
pocket11.Reversed = True

doc.recompute()
